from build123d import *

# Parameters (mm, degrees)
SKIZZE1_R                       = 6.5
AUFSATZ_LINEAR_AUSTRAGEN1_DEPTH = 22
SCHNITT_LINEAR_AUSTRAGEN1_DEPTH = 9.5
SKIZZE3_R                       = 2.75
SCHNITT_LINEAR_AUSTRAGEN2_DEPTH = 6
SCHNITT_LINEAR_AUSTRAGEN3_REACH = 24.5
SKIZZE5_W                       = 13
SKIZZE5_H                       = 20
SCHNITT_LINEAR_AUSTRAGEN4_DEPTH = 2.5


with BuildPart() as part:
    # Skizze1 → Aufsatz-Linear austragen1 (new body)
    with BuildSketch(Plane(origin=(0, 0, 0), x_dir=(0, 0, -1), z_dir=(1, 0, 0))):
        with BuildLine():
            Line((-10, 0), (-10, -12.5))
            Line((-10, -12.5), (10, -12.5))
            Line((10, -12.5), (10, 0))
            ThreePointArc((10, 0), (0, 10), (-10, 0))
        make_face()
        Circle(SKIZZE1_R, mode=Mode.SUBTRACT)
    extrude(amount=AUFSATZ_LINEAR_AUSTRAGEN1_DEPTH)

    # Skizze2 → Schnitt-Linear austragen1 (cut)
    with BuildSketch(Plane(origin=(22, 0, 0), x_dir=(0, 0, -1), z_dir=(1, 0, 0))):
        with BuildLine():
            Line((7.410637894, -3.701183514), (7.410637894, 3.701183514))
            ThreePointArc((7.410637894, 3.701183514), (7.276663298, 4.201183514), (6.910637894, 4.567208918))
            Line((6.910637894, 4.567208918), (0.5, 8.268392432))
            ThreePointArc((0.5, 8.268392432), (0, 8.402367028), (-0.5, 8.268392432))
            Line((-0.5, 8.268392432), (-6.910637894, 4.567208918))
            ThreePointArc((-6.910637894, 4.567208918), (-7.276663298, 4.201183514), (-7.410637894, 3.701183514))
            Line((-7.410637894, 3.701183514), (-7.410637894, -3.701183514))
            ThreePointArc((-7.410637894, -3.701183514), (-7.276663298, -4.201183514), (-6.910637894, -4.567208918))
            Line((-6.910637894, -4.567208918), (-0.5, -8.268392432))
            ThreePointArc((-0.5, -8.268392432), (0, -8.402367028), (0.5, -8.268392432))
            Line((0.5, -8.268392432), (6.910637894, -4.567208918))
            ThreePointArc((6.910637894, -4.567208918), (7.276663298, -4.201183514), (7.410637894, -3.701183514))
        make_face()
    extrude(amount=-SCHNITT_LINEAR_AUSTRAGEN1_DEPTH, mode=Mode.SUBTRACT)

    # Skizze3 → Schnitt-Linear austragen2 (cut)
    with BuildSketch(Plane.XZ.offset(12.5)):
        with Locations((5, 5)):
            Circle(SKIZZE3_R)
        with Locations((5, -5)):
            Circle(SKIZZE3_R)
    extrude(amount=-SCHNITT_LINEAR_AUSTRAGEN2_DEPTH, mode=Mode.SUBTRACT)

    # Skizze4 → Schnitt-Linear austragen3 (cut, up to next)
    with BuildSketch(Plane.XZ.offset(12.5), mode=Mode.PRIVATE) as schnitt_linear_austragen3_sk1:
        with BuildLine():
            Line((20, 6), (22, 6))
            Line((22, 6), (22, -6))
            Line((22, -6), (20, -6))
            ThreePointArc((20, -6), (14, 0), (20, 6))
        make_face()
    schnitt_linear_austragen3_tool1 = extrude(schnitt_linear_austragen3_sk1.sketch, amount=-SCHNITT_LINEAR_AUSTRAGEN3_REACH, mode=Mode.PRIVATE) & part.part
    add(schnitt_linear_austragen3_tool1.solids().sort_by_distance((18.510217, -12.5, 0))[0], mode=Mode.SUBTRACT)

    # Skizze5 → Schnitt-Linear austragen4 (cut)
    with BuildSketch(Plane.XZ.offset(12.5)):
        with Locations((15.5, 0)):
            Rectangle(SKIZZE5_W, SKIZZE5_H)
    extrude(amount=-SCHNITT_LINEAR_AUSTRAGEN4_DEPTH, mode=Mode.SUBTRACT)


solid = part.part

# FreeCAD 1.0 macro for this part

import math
import FreeCAD as App
import Part
import Sketcher

V = App.Vector
Q = App.Units.Quantity


def add_polygon(sketch, points):
    """Adds a closed chain of lines whose ends are joined by coincident constraints."""
    first, n = sketch.GeometryCount, len(points)
    for a, b in zip(points, points[1:] + points[:1]):
        sketch.addGeometry(Part.LineSegment(App.Vector(*a, 0), App.Vector(*b, 0)), False)
    for i in range(n):
        sketch.addConstraint(Sketcher.Constraint("Coincident", first + i, 2, first + (i + 1) % n, 1))

doc = App.newDocument("Part")
params = doc.addObject("Spreadsheet::Sheet", "Params")
for row, (alias, value) in enumerate([
    ("sketch1_diameter", "13 mm"),
    ("sketch1_radius", "10 mm"),
    ("sketch1_width", "12.5 mm"),
    ("pad1_length", "22 mm"),
    ("sketch2_radius", "1 mm"),
    ("pocket1_length", "9.5 mm"),
    ("sketch3_diameter", "5.5 mm"),
    ("pocket2_length", "6 mm"),
    ("sketch4_radius", "6 mm"),
    ("sketch4_width", "2 mm"),
    ("pocket3_length", "7.407034 mm"),
    ("sketch5_width", "13 mm"),
    ("sketch5_height", "20 mm"),
    ("pocket4_length", "2.5 mm"),
], start=1):
    params.set(f"A{row}", alias)
    params.set(f"B{row}", "=" + value)
    params.setAlias(f"B{row}", alias)

body = doc.addObject("PartDesign::Body", "Body")

# Sketch on YZ plane
sketch1 = body.newObject("Sketcher::SketchObject", "Sketch")
sketch1.AttachmentSupport = (doc.getObject("YZ_Plane"), [""])
sketch1.MapMode = "FlatFace"
sketch1.addGeometry([
    Part.LineSegment(V(0, 10, 0), V(-12, 10, 0)),  # 0
    Part.LineSegment(V(-12, 10, 0), V(-12, -10, 0)),  # 1
    Part.LineSegment(V(-12, -10, 0), V(0, -10, 0)),  # 2
    Part.ArcOfCircle(Part.Circle(V(0, 0, 0), V(0, 0, 1), 10), math.radians(-90), math.radians(90)),  # 3
    Part.Circle(V(0, 0, 0), V(0, 0, 1), 6),  # 4
], False)
sketch1.addConstraint([
    Sketcher.Constraint("Coincident", 0, 2, 1, 1),
    Sketcher.Constraint("Coincident", 1, 2, 2, 1),
    Sketcher.Constraint("Tangent", 2, 2, 3, 1),
    Sketcher.Constraint("Tangent", 3, 2, 0, 1),
    Sketcher.Constraint("Horizontal", 0),
    Sketcher.Constraint("Vertical", 1),
    Sketcher.Constraint("Horizontal", 2),
    Sketcher.Constraint("Coincident", 3, 3, -1, 1),
    Sketcher.Constraint("Coincident", 4, 3, -1, 1),
    Sketcher.Constraint("Diameter", 4, Q("13 mm")),
    Sketcher.Constraint("Radius", 3, Q("10 mm")),
    Sketcher.Constraint("DistanceX", 0, 2, 0, 1, Q("12.5 mm")),
])
sketch1.setExpression("Constraints[9]", "Params.sketch1_diameter")
sketch1.setExpression("Constraints[10]", "Params.sketch1_radius")
sketch1.setExpression("Constraints[11]", "Params.sketch1_width")
pad1 = body.newObject("PartDesign::Pad", "Pad")
pad1.Profile = sketch1
pad1.setExpression("Length", "Params.pad1_length")

# Sketch on YZ plane
sketch2 = body.newObject("Sketcher::SketchObject", "Sketch001")
sketch2.AttachmentSupport = (doc.getObject("YZ_Plane"), [""])
sketch2.MapMode = "FlatFace"
sketch2.AttachmentOffset = App.Placement(V(0, 0, 22), App.Rotation())
sketch2.addGeometry([
    Part.LineSegment(V(-3.7, -7.4, 0), V(3.7, -7.4, 0)),  # 0
    Part.ArcOfCircle(Part.Circle(V(3.7, -6.4, 0), V(0, 0, 1), 1), math.radians(-90), math.radians(-30)),  # 1
    Part.LineSegment(V(4.6, -6.9, 0), V(8.3, -0.5, 0)),  # 2
    Part.ArcOfCircle(Part.Circle(V(7.4, 0, 0), V(0, 0, 1), 1), math.radians(-30), math.radians(30)),  # 3
    Part.LineSegment(V(8.3, 0.5, 0), V(4.6, 6.9, 0)),  # 4
    Part.ArcOfCircle(Part.Circle(V(3.7, 6.4, 0), V(0, 0, 1), 1), math.radians(30), math.radians(90)),  # 5
    Part.LineSegment(V(3.7, 7.4, 0), V(-3.7, 7.4, 0)),  # 6
    Part.ArcOfCircle(Part.Circle(V(-3.7, 6.4, 0), V(0, 0, 1), 1), math.radians(90), math.radians(150)),  # 7
    Part.LineSegment(V(-4.6, 6.9, 0), V(-8.3, 0.5, 0)),  # 8
    Part.ArcOfCircle(Part.Circle(V(-7.4, 0, 0), V(0, 0, 1), 1), math.radians(150), math.radians(210)),  # 9
    Part.LineSegment(V(-8.3, -0.5, 0), V(-4.6, -6.9, 0)),  # 10
    Part.ArcOfCircle(Part.Circle(V(-3.7, -6.4, 0), V(0, 0, 1), 1), math.radians(-150), math.radians(-90)),  # 11
], False)
sketch2.addConstraint([
    Sketcher.Constraint("Tangent", 0, 2, 1, 1),
    Sketcher.Constraint("Tangent", 1, 2, 2, 1),
    Sketcher.Constraint("Tangent", 2, 2, 3, 1),
    Sketcher.Constraint("Tangent", 3, 2, 4, 1),
    Sketcher.Constraint("Tangent", 4, 2, 5, 1),
    Sketcher.Constraint("Tangent", 5, 2, 6, 1),
    Sketcher.Constraint("Tangent", 6, 2, 7, 1),
    Sketcher.Constraint("Tangent", 7, 2, 8, 1),
    Sketcher.Constraint("Tangent", 8, 2, 9, 1),
    Sketcher.Constraint("Tangent", 9, 2, 10, 1),
    Sketcher.Constraint("Tangent", 10, 2, 11, 1),
    Sketcher.Constraint("Tangent", 11, 2, 0, 1),
    Sketcher.Constraint("Horizontal", 0),
    Sketcher.Constraint("Horizontal", 6),
    Sketcher.Constraint("Equal", 1, 3),
    Sketcher.Constraint("Equal", 3, 5),
    Sketcher.Constraint("Equal", 5, 7),
    Sketcher.Constraint("Equal", 7, 9),
    Sketcher.Constraint("Equal", 9, 11),
    Sketcher.Constraint("Symmetric", 1, 3, 7, 3, -1, 1),
    Sketcher.Constraint("Symmetric", 3, 3, 9, 3, -1, 1),
    Sketcher.Constraint("Symmetric", 4, 2, 7, 2, -2),
    Sketcher.Constraint("Parallel", 4, 10),
    Sketcher.Constraint("Radius", 1, Q("1 mm")),
    Sketcher.Constraint("Angle", 2, Q("60 deg")),
    Sketcher.Constraint("DistanceX", 0, 1, 0, 2, Q("7.402367 mm")),
    Sketcher.Constraint("DistanceX", 7, 3, 3, 3, Q("11.103551 mm")),
])
sketch2.setExpression("Constraints[23]", "Params.sketch2_radius")
pocket1 = body.newObject("PartDesign::Pocket", "Pocket")
pocket1.Profile = sketch2
pocket1.setExpression("Length", "Params.pocket1_length")

# Sketch on XZ plane
sketch3 = body.newObject("Sketcher::SketchObject", "Sketch002")
sketch3.AttachmentSupport = (doc.getObject("XZ_Plane"), [""])
sketch3.MapMode = "FlatFace"
sketch3.AttachmentOffset = App.Placement(V(0, 0, 12.5), App.Rotation())
sketch3.addGeometry([
    Part.Circle(V(5, 5, 0), V(0, 0, 1), 2.8),
    Part.Circle(V(5, -5, 0), V(0, 0, 1), 2.8),
], False)
sketch3.addConstraint([
    Sketcher.Constraint("Equal", 0, 1),
    Sketcher.Constraint("Symmetric", 0, 3, 1, 3, -1),
    Sketcher.Constraint("Diameter", 0, Q("5.5 mm")),
    Sketcher.Constraint("DistanceX", -1, 1, 0, 3, Q("5 mm")),
    Sketcher.Constraint("DistanceY", -1, 1, 0, 3, Q("5 mm")),
])
sketch3.setExpression("Constraints[2]", "Params.sketch3_diameter")
pocket2 = body.newObject("PartDesign::Pocket", "Pocket001")
pocket2.Profile = sketch3
pocket2.setExpression("Length", "Params.pocket2_length")

# Sketch on XZ plane
sketch4 = body.newObject("Sketcher::SketchObject", "Sketch003")
sketch4.AttachmentSupport = (doc.getObject("XZ_Plane"), [""])
sketch4.MapMode = "FlatFace"
sketch4.AttachmentOffset = App.Placement(V(0, 0, 12.5), App.Rotation())
sketch4.addGeometry([
    Part.LineSegment(V(22, 6, 0), V(20, 6, 0)),
    Part.ArcOfCircle(Part.Circle(V(20, 0, 0), V(0, 0, 1), 6), math.radians(90), math.radians(270)),
    Part.LineSegment(V(20, -6, 0), V(22, -6, 0)),
    Part.LineSegment(V(22, -6, 0), V(22, 6, 0)),
], False)
sketch4.addConstraint([
    Sketcher.Constraint("Tangent", 0, 2, 1, 1),
    Sketcher.Constraint("Tangent", 1, 2, 2, 1),
    Sketcher.Constraint("Coincident", 2, 2, 3, 1),
    Sketcher.Constraint("Coincident", 3, 2, 0, 1),
    Sketcher.Constraint("Horizontal", 0),
    Sketcher.Constraint("Horizontal", 2),
    Sketcher.Constraint("Vertical", 3),
    Sketcher.Constraint("PointOnObject", 1, 3, -1),
    Sketcher.Constraint("Radius", 1, Q("6 mm")),
    Sketcher.Constraint("DistanceX", 0, 2, 0, 1, Q("2 mm")),
    Sketcher.Constraint("DistanceX", -1, 1, 1, 3, Q("20 mm")),
])
sketch4.setExpression("Constraints[8]", "Params.sketch4_radius")
sketch4.setExpression("Constraints[9]", "Params.sketch4_width")
pocket3 = body.newObject("PartDesign::Pocket", "Pocket002")
pocket3.Profile = sketch4
pocket3.setExpression("Length", "Params.pocket3_length")

# Sketch on XZ plane
sketch5 = body.newObject("Sketcher::SketchObject", "Sketch004")
sketch5.AttachmentSupport = (doc.getObject("XZ_Plane"), [""])
sketch5.MapMode = "FlatFace"
sketch5.AttachmentOffset = App.Placement(V(0, 0, 12.5), App.Rotation())
add_polygon(sketch5, [(9, 10), (9, -10), (22, -10), (22, 10)])  # lines 0-3
sketch5.addConstraint([
    Sketcher.Constraint("Vertical", 0),
    Sketcher.Constraint("Horizontal", 1),
    Sketcher.Constraint("Vertical", 2),
    Sketcher.Constraint("Horizontal", 3),
    Sketcher.Constraint("DistanceX", 1, 1, 1, 2, Q("13 mm")),
    Sketcher.Constraint("DistanceY", 0, 2, 0, 1, Q("20 mm")),
    Sketcher.Constraint("DistanceX", -1, 1, 0, 2, Q("9 mm")),
    Sketcher.Constraint("DistanceY", 0, 2, -1, 1, Q("10 mm")),
])
sketch5.setExpression("Constraints[8]", "Params.sketch5_width")
sketch5.setExpression("Constraints[9]", "Params.sketch5_height")
pocket4 = body.newObject("PartDesign::Pocket", "Pocket003")
pocket4.Profile = sketch5
pocket4.setExpression("Length", "Params.pocket4_length")

doc.recompute()
